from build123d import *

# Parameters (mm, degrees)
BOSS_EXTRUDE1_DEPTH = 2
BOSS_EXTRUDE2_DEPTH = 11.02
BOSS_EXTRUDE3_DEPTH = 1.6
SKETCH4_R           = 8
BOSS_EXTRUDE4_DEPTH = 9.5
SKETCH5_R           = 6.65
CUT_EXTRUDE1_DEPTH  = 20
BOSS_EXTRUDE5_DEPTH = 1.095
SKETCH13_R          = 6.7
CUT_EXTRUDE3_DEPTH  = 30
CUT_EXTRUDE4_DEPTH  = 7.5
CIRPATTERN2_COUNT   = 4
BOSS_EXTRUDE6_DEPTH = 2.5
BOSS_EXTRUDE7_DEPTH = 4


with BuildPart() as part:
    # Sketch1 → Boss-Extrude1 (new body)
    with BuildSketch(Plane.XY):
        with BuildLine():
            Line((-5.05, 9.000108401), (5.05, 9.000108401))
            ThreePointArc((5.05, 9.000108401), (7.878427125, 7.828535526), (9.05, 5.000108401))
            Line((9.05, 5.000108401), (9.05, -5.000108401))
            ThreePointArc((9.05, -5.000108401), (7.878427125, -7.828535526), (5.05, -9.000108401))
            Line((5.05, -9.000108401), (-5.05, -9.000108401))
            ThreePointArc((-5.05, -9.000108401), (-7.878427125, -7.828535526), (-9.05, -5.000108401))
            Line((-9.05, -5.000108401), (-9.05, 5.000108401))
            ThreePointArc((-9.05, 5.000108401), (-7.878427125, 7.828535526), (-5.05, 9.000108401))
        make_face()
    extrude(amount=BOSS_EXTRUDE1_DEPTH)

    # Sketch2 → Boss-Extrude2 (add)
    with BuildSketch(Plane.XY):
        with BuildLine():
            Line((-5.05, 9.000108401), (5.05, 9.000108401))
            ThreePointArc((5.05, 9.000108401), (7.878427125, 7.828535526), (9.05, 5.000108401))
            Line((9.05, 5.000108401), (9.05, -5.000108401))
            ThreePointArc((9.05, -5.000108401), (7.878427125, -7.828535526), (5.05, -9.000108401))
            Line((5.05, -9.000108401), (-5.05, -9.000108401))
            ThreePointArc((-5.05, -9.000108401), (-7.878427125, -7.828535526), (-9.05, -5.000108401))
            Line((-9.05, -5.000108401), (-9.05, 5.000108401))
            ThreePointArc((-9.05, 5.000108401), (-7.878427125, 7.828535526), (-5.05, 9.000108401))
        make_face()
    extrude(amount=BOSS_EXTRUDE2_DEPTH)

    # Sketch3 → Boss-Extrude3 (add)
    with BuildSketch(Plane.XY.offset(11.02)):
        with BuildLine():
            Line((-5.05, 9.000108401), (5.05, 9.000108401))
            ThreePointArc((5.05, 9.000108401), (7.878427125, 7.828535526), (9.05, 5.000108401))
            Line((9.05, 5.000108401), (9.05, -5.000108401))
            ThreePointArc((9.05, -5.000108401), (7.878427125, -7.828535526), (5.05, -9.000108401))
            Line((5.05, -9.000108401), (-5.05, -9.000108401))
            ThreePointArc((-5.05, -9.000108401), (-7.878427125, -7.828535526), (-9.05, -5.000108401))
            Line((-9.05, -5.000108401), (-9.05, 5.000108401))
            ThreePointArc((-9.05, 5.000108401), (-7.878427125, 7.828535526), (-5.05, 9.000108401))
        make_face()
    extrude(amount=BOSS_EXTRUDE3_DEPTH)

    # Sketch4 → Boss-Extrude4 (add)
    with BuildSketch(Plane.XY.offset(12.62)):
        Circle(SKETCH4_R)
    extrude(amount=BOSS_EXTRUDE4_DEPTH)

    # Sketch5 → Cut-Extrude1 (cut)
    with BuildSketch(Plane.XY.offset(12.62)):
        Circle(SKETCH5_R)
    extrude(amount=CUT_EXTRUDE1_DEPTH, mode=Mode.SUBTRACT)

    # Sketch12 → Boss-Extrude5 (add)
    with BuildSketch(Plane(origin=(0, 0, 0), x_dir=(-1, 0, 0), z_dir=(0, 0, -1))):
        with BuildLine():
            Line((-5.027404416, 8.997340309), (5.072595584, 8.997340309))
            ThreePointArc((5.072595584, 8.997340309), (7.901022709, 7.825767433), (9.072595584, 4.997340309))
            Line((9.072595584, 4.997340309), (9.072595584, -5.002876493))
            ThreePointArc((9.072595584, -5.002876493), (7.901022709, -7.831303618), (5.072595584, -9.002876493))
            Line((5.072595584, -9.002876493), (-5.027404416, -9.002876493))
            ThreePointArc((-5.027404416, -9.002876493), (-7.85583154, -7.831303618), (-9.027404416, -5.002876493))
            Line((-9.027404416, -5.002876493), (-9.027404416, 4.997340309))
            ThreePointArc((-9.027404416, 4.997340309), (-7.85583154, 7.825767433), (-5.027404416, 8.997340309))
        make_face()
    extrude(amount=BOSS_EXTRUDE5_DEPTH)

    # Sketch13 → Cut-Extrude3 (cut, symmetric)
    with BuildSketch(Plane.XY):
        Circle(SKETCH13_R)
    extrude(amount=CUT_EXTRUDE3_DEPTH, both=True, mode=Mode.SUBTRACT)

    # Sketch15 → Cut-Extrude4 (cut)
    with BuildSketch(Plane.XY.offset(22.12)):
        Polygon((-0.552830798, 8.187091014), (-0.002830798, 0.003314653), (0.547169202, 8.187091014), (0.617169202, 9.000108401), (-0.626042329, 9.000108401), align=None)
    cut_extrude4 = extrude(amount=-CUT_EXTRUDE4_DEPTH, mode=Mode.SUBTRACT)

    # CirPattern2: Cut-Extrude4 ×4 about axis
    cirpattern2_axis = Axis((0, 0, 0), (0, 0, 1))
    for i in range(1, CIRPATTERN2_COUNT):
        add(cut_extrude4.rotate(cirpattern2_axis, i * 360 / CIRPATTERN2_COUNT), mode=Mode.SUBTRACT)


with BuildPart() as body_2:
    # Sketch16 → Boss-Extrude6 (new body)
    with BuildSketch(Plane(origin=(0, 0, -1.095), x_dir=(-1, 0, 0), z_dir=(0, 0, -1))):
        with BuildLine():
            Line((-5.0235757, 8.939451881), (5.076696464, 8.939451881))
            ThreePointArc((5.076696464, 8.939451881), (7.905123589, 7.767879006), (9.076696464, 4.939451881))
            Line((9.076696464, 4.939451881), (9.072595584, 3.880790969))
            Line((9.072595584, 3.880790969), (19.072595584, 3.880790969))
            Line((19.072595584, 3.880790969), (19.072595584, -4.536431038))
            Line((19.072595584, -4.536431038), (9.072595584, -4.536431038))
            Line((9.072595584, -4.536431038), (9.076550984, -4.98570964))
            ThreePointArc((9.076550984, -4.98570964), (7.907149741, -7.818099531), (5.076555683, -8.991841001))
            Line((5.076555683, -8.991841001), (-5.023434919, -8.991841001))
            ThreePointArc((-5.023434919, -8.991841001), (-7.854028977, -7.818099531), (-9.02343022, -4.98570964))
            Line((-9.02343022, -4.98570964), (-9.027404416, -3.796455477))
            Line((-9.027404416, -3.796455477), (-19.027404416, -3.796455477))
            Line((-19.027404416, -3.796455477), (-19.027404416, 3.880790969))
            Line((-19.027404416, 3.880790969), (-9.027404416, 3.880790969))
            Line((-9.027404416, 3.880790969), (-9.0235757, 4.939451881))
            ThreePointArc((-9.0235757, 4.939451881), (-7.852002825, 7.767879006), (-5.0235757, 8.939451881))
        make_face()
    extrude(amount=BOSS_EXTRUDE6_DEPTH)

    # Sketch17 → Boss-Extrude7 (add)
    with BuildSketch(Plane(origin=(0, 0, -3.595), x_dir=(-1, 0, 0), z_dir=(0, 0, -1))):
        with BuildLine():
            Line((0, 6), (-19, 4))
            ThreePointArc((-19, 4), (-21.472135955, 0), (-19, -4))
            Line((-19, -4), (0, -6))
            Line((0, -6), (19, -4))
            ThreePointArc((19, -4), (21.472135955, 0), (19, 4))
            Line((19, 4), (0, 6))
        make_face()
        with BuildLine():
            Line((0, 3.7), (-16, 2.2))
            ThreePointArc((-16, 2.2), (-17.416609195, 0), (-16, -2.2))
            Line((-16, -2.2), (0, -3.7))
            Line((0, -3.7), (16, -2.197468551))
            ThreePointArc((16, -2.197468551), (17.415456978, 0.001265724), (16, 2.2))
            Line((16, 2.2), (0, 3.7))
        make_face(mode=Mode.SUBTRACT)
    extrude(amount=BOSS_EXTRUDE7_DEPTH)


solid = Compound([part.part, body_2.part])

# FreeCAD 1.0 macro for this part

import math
import FreeCAD as App
import Part
import Sketcher

V = App.Vector

doc = App.newDocument("Part")
body = doc.addObject("PartDesign::Body", "Body")

# Sketch on XY plane
sketch1 = doc.addObject("Sketcher::SketchObject", "Sketch")
body.addObject(sketch1)
sketch1.AttachmentSupport = (doc.XY_Plane, [""])
sketch1.MapMode = "FlatFace"
sketch1.addGeometry(Part.LineSegment(V(5.05, 9.000108, 0), V(-5.05, 9.000108, 0)), False)
sketch1.addGeometry(Part.ArcOfCircle(Part.Circle(V(-5.05, 5.000108, 0), V(0, 0, 1), 4), math.radians(90), math.radians(180)), False)
sketch1.addGeometry(Part.LineSegment(V(-9.05, 5.000108, 0), V(-9.05, -5.000108, 0)), False)
sketch1.addGeometry(Part.ArcOfCircle(Part.Circle(V(-5.05, -5.000108, 0), V(0, 0, 1), 4), math.radians(180), math.radians(270)), False)
sketch1.addGeometry(Part.LineSegment(V(-5.05, -9.000108, 0), V(5.05, -9.000108, 0)), False)
sketch1.addGeometry(Part.ArcOfCircle(Part.Circle(V(5.05, -5.000108, 0), V(0, 0, 1), 4), math.radians(-90), math.radians(0)), False)
sketch1.addGeometry(Part.LineSegment(V(9.05, -5.000108, 0), V(9.05, 5.000108, 0)), False)
sketch1.addGeometry(Part.ArcOfCircle(Part.Circle(V(5.05, 5.000108, 0), V(0, 0, 1), 4), math.radians(0), math.radians(90)), False)
sketch1.addConstraint(Sketcher.Constraint("Tangent", 0, 2, 1, 1))
sketch1.addConstraint(Sketcher.Constraint("Tangent", 1, 2, 2, 1))
sketch1.addConstraint(Sketcher.Constraint("Tangent", 2, 2, 3, 1))
sketch1.addConstraint(Sketcher.Constraint("Tangent", 3, 2, 4, 1))
sketch1.addConstraint(Sketcher.Constraint("Tangent", 4, 2, 5, 1))
sketch1.addConstraint(Sketcher.Constraint("Tangent", 5, 2, 6, 1))
sketch1.addConstraint(Sketcher.Constraint("Tangent", 6, 2, 7, 1))
sketch1.addConstraint(Sketcher.Constraint("Tangent", 7, 2, 0, 1))
sketch1.addConstraint(Sketcher.Constraint("Horizontal", 0))
sketch1.addConstraint(Sketcher.Constraint("Vertical", 2))
sketch1.addConstraint(Sketcher.Constraint("Horizontal", 4))
sketch1.addConstraint(Sketcher.Constraint("Vertical", 6))
sketch1.addConstraint(Sketcher.Constraint("Equal", 1, 3))
sketch1.addConstraint(Sketcher.Constraint("Equal", 3, 5))
sketch1.addConstraint(Sketcher.Constraint("Equal", 5, 7))
sketch1.addConstraint(Sketcher.Constraint("Symmetric", 1, 3, 5, 3, -1, 1))
sketch1.addConstraint(Sketcher.Constraint("Radius", 1, 4.0))
sketch1.addConstraint(Sketcher.Constraint("DistanceX", 0, 2, 0, 1, 10.1))
sketch1.addConstraint(Sketcher.Constraint("DistanceY", 2, 2, 2, 1, 10.000217))
pad1 = doc.addObject("PartDesign::Pad", "Pad")
body.addObject(pad1)
pad1.Profile = sketch1
pad1.Length = 2

# Sketch on XY plane
sketch2 = doc.addObject("Sketcher::SketchObject", "Sketch001")
body.addObject(sketch2)
sketch2.AttachmentSupport = (doc.XY_Plane, [""])
sketch2.MapMode = "FlatFace"
sketch2.addGeometry(Part.LineSegment(V(5.05, 9.000108, 0), V(-5.05, 9.000108, 0)), False)
sketch2.addGeometry(Part.ArcOfCircle(Part.Circle(V(-5.05, 5.000108, 0), V(0, 0, 1), 4), math.radians(90), math.radians(180)), False)
sketch2.addGeometry(Part.LineSegment(V(-9.05, 5.000108, 0), V(-9.05, -5.000108, 0)), False)
sketch2.addGeometry(Part.ArcOfCircle(Part.Circle(V(-5.05, -5.000108, 0), V(0, 0, 1), 4), math.radians(180), math.radians(270)), False)
sketch2.addGeometry(Part.LineSegment(V(-5.05, -9.000108, 0), V(5.05, -9.000108, 0)), False)
sketch2.addGeometry(Part.ArcOfCircle(Part.Circle(V(5.05, -5.000108, 0), V(0, 0, 1), 4), math.radians(-90), math.radians(0)), False)
sketch2.addGeometry(Part.LineSegment(V(9.05, -5.000108, 0), V(9.05, 5.000108, 0)), False)
sketch2.addGeometry(Part.ArcOfCircle(Part.Circle(V(5.05, 5.000108, 0), V(0, 0, 1), 4), math.radians(0), math.radians(90)), False)
sketch2.addConstraint(Sketcher.Constraint("Tangent", 0, 2, 1, 1))
sketch2.addConstraint(Sketcher.Constraint("Tangent", 1, 2, 2, 1))
sketch2.addConstraint(Sketcher.Constraint("Tangent", 2, 2, 3, 1))
sketch2.addConstraint(Sketcher.Constraint("Tangent", 3, 2, 4, 1))
sketch2.addConstraint(Sketcher.Constraint("Tangent", 4, 2, 5, 1))
sketch2.addConstraint(Sketcher.Constraint("Tangent", 5, 2, 6, 1))
sketch2.addConstraint(Sketcher.Constraint("Tangent", 6, 2, 7, 1))
sketch2.addConstraint(Sketcher.Constraint("Tangent", 7, 2, 0, 1))
sketch2.addConstraint(Sketcher.Constraint("Horizontal", 0))
sketch2.addConstraint(Sketcher.Constraint("Vertical", 2))
sketch2.addConstraint(Sketcher.Constraint("Horizontal", 4))
sketch2.addConstraint(Sketcher.Constraint("Vertical", 6))
sketch2.addConstraint(Sketcher.Constraint("Equal", 1, 3))
sketch2.addConstraint(Sketcher.Constraint("Equal", 3, 5))
sketch2.addConstraint(Sketcher.Constraint("Equal", 5, 7))
sketch2.addConstraint(Sketcher.Constraint("Symmetric", 1, 3, 5, 3, -1, 1))
sketch2.addConstraint(Sketcher.Constraint("Radius", 1, 4.0))
sketch2.addConstraint(Sketcher.Constraint("DistanceX", 0, 2, 0, 1, 10.1))
sketch2.addConstraint(Sketcher.Constraint("DistanceY", 2, 2, 2, 1, 10.000217))
pad2 = doc.addObject("PartDesign::Pad", "Pad001")
body.addObject(pad2)
pad2.Profile = sketch2
pad2.Length = 11.02

# Sketch on XY plane
sketch3 = doc.addObject("Sketcher::SketchObject", "Sketch002")
body.addObject(sketch3)
sketch3.AttachmentSupport = (doc.XY_Plane, [""])
sketch3.MapMode = "FlatFace"
sketch3.AttachmentOffset = App.Placement(V(0, 0, 11.02), App.Rotation())
sketch3.addGeometry(Part.LineSegment(V(5.05, 9.000108, 0), V(-5.05, 9.000108, 0)), False)
sketch3.addGeometry(Part.ArcOfCircle(Part.Circle(V(-5.05, 5.000108, 0), V(0, 0, 1), 4), math.radians(90), math.radians(180)), False)
sketch3.addGeometry(Part.LineSegment(V(-9.05, 5.000108, 0), V(-9.05, -5.000108, 0)), False)
sketch3.addGeometry(Part.ArcOfCircle(Part.Circle(V(-5.05, -5.000108, 0), V(0, 0, 1), 4), math.radians(180), math.radians(270)), False)
sketch3.addGeometry(Part.LineSegment(V(-5.05, -9.000108, 0), V(5.05, -9.000108, 0)), False)
sketch3.addGeometry(Part.ArcOfCircle(Part.Circle(V(5.05, -5.000108, 0), V(0, 0, 1), 4), math.radians(-90), math.radians(0)), False)
sketch3.addGeometry(Part.LineSegment(V(9.05, -5.000108, 0), V(9.05, 5.000108, 0)), False)
sketch3.addGeometry(Part.ArcOfCircle(Part.Circle(V(5.05, 5.000108, 0), V(0, 0, 1), 4), math.radians(0), math.radians(90)), False)
sketch3.addConstraint(Sketcher.Constraint("Tangent", 0, 2, 1, 1))
sketch3.addConstraint(Sketcher.Constraint("Tangent", 1, 2, 2, 1))
sketch3.addConstraint(Sketcher.Constraint("Tangent", 2, 2, 3, 1))
sketch3.addConstraint(Sketcher.Constraint("Tangent", 3, 2, 4, 1))
sketch3.addConstraint(Sketcher.Constraint("Tangent", 4, 2, 5, 1))
sketch3.addConstraint(Sketcher.Constraint("Tangent", 5, 2, 6, 1))
sketch3.addConstraint(Sketcher.Constraint("Tangent", 6, 2, 7, 1))
sketch3.addConstraint(Sketcher.Constraint("Tangent", 7, 2, 0, 1))
sketch3.addConstraint(Sketcher.Constraint("Horizontal", 0))
sketch3.addConstraint(Sketcher.Constraint("Vertical", 2))
sketch3.addConstraint(Sketcher.Constraint("Horizontal", 4))
sketch3.addConstraint(Sketcher.Constraint("Vertical", 6))
sketch3.addConstraint(Sketcher.Constraint("Equal", 1, 3))
sketch3.addConstraint(Sketcher.Constraint("Equal", 3, 5))
sketch3.addConstraint(Sketcher.Constraint("Equal", 5, 7))
sketch3.addConstraint(Sketcher.Constraint("Symmetric", 1, 3, 5, 3, -1, 1))
sketch3.addConstraint(Sketcher.Constraint("Radius", 1, 4.0))
sketch3.addConstraint(Sketcher.Constraint("DistanceX", 0, 2, 0, 1, 10.1))
sketch3.addConstraint(Sketcher.Constraint("DistanceY", 2, 2, 2, 1, 10.000217))
pad3 = doc.addObject("PartDesign::Pad", "Pad002")
body.addObject(pad3)
pad3.Profile = sketch3
pad3.Length = 1.6

# Sketch on XY plane
sketch4 = doc.addObject("Sketcher::SketchObject", "Sketch003")
body.addObject(sketch4)
sketch4.AttachmentSupport = (doc.XY_Plane, [""])
sketch4.MapMode = "FlatFace"
sketch4.AttachmentOffset = App.Placement(V(0, 0, 12.62), App.Rotation())
sketch4.addGeometry(Part.Circle(V(0, 0, 0), V(0, 0, 1), 8), False)
sketch4.addConstraint(Sketcher.Constraint("Coincident", 0, 3, -1, 1))
sketch4.addConstraint(Sketcher.Constraint("Diameter", 0, 16.0))
pad4 = doc.addObject("PartDesign::Pad", "Pad003")
body.addObject(pad4)
pad4.Profile = sketch4
pad4.Length = 9.5

# Sketch on XY plane
sketch5 = doc.addObject("Sketcher::SketchObject", "Sketch004")
body.addObject(sketch5)
sketch5.AttachmentSupport = (doc.XY_Plane, [""])
sketch5.MapMode = "FlatFace"
sketch5.AttachmentOffset = App.Placement(V(0, 0, 12.62), App.Rotation())
sketch5.addGeometry(Part.Circle(V(0, 0, 0), V(0, 0, 1), 6.65), False)
sketch5.addConstraint(Sketcher.Constraint("Coincident", 0, 3, -1, 1))
sketch5.addConstraint(Sketcher.Constraint("Diameter", 0, 13.3))
pocket1 = doc.addObject("PartDesign::Pocket", "Pocket")
body.addObject(pocket1)
pocket1.Profile = sketch5
pocket1.Length = 20
pocket1.Reversed = True

# Sketch on XY plane
sketch6 = doc.addObject("Sketcher::SketchObject", "Sketch005")
body.addObject(sketch6)
sketch6.AttachmentSupport = (doc.XY_Plane, [""])
sketch6.MapMode = "FlatFace"
sketch6.addGeometry(Part.LineSegment(V(-5.072596, 8.99734, 0), V(5.027404, 8.99734, 0)), False)
sketch6.addGeometry(Part.ArcOfCircle(Part.Circle(V(5.027404, 4.99734, 0), V(0, 0, 1), 4), math.radians(0), math.radians(90)), False)
sketch6.addGeometry(Part.LineSegment(V(9.027404, 4.99734, 0), V(9.027404, -5.002876, 0)), False)
sketch6.addGeometry(Part.ArcOfCircle(Part.Circle(V(5.027404, -5.002876, 0), V(0, 0, 1), 4), math.radians(-90), math.radians(0)), False)
sketch6.addGeometry(Part.LineSegment(V(5.027404, -9.002876, 0), V(-5.072596, -9.002876, 0)), False)
sketch6.addGeometry(Part.ArcOfCircle(Part.Circle(V(-5.072596, -5.002876, 0), V(0, 0, 1), 4), math.radians(180), math.radians(270)), False)
sketch6.addGeometry(Part.LineSegment(V(-9.072596, -5.002876, 0), V(-9.072596, 4.99734, 0)), False)
sketch6.addGeometry(Part.ArcOfCircle(Part.Circle(V(-5.072596, 4.99734, 0), V(0, 0, 1), 4), math.radians(90), math.radians(180)), False)
sketch6.addConstraint(Sketcher.Constraint("Tangent", 0, 2, 1, 2))
sketch6.addConstraint(Sketcher.Constraint("Tangent", 1, 1, 2, 1))
sketch6.addConstraint(Sketcher.Constraint("Tangent", 2, 2, 3, 2))
sketch6.addConstraint(Sketcher.Constraint("Tangent", 3, 1, 4, 1))
sketch6.addConstraint(Sketcher.Constraint("Tangent", 4, 2, 5, 2))
sketch6.addConstraint(Sketcher.Constraint("Tangent", 5, 1, 6, 1))
sketch6.addConstraint(Sketcher.Constraint("Tangent", 6, 2, 7, 2))
sketch6.addConstraint(Sketcher.Constraint("Tangent", 7, 1, 0, 1))
sketch6.addConstraint(Sketcher.Constraint("Horizontal", 0))
sketch6.addConstraint(Sketcher.Constraint("Vertical", 2))
sketch6.addConstraint(Sketcher.Constraint("Horizontal", 4))
sketch6.addConstraint(Sketcher.Constraint("Vertical", 6))
sketch6.addConstraint(Sketcher.Constraint("Equal", 1, 3))
sketch6.addConstraint(Sketcher.Constraint("Equal", 3, 5))
sketch6.addConstraint(Sketcher.Constraint("Equal", 5, 7))
sketch6.addConstraint(Sketcher.Constraint("Radius", 1, 4.0))
sketch6.addConstraint(Sketcher.Constraint("DistanceX", 0, 1, 0, 2, 10.1))
sketch6.addConstraint(Sketcher.Constraint("DistanceY", 2, 2, 2, 1, 10.000217))
sketch6.addConstraint(Sketcher.Constraint("DistanceY", -1, 1, 1, 3, 4.99734))
sketch6.addConstraint(Sketcher.Constraint("DistanceX", -1, 1, 1, 3, 5.027404))
pad5 = doc.addObject("PartDesign::Pad", "Pad004")
body.addObject(pad5)
pad5.Profile = sketch6
pad5.Length = 1.095
pad5.Reversed = True

# Sketch on XY plane
sketch7 = doc.addObject("Sketcher::SketchObject", "Sketch006")
body.addObject(sketch7)
sketch7.AttachmentSupport = (doc.XY_Plane, [""])
sketch7.MapMode = "FlatFace"
sketch7.addGeometry(Part.Circle(V(0, 0, 0), V(0, 0, 1), 6.7), False)
sketch7.addConstraint(Sketcher.Constraint("Coincident", 0, 3, -1, 1))
sketch7.addConstraint(Sketcher.Constraint("Diameter", 0, 13.4))
pocket2 = doc.addObject("PartDesign::Pocket", "Pocket001")
body.addObject(pocket2)
pocket2.Profile = sketch7
pocket2.Length = 60
pocket2.Midplane = True

# Sketch on XY plane
sketch8 = doc.addObject("Sketcher::SketchObject", "Sketch007")
body.addObject(sketch8)
sketch8.AttachmentSupport = (doc.XY_Plane, [""])
sketch8.MapMode = "FlatFace"
sketch8.AttachmentOffset = App.Placement(V(0, 0, 22.12), App.Rotation())
sketch8.addGeometry(Part.LineSegment(V(-0.552831, 8.187091, 0), V(-0.002831, 0.003315, 0)), False)
sketch8.addGeometry(Part.LineSegment(V(-0.002831, 0.003315, 0), V(0.547169, 8.187091, 0)), False)
sketch8.addGeometry(Part.LineSegment(V(0.547169, 8.187091, 0), V(0.617169, 9.000108, 0)), False)
sketch8.addGeometry(Part.LineSegment(V(0.617169, 9.000108, 0), V(-0.626042, 9.000108, 0)), False)
sketch8.addGeometry(Part.LineSegment(V(-0.626042, 9.000108, 0), V(-0.552831, 8.187091, 0)), False)
sketch8.addConstraint(Sketcher.Constraint("Coincident", 0, 2, 1, 1))
sketch8.addConstraint(Sketcher.Constraint("Coincident", 1, 2, 2, 1))
sketch8.addConstraint(Sketcher.Constraint("Coincident", 2, 2, 3, 1))
sketch8.addConstraint(Sketcher.Constraint("Coincident", 3, 2, 4, 1))
sketch8.addConstraint(Sketcher.Constraint("Coincident", 4, 2, 0, 1))
sketch8.addConstraint(Sketcher.Constraint("Horizontal", 3))
sketch8.addConstraint(Sketcher.Constraint("Horizontal", 1, 2, 4, 2))
sketch8.addConstraint(Sketcher.Constraint("Equal", 0, 1))
sketch8.addConstraint(Sketcher.Constraint("DistanceX", 4, 2, 1, 2, 1.1))
sketch8.addConstraint(Sketcher.Constraint("DistanceX", 1, 2, 2, 2, 0.07))
sketch8.addConstraint(Sketcher.Constraint("DistanceX", 3, 2, 3, 1, 1.243212))
sketch8.addConstraint(Sketcher.Constraint("DistanceX", 0, 2, -1, 1, 0.002831))
sketch8.addConstraint(Sketcher.Constraint("DistanceY", -1, 1, 1, 2, 8.187091))
sketch8.addConstraint(Sketcher.Constraint("DistanceY", -1, 1, 2, 2, 9.000108))
sketch8.addConstraint(Sketcher.Constraint("Distance", 0, 8.202237))
pocket3 = doc.addObject("PartDesign::Pocket", "Pocket002")
body.addObject(pocket3)
pocket3.Profile = sketch8
pocket3.Length = 7.5
doc.recompute()

polarpattern = doc.addObject("PartDesign::PolarPattern", "PolarPattern")
body.addObject(polarpattern)
polarpattern.Originals = [pocket3]
polarpattern.Axis = (doc.Z_Axis, [""])
polarpattern.Angle = 360
polarpattern.Occurrences = 4
body.Tip = polarpattern
body2 = doc.addObject("PartDesign::Body", "Body001")

# Sketch on XY plane
sketch9 = doc.addObject("Sketcher::SketchObject", "Sketch008")
body2.addObject(sketch9)
sketch9.AttachmentSupport = (doc.getObject("XY_Plane001"), [""])
sketch9.MapMode = "FlatFace"
sketch9.AttachmentOffset = App.Placement(V(0, 0, -1.095), App.Rotation())
sketch9.addGeometry(Part.LineSegment(V(-5.076696, 8.939452, 0), V(5.023576, 8.939452, 0)), False)
sketch9.addGeometry(Part.ArcOfCircle(Part.Circle(V(5.023576, 4.939452, 0), V(0, 0, 1), 4), math.radians(0), math.radians(90)), False)
sketch9.addGeometry(Part.LineSegment(V(9.023576, 4.939452, 0), V(9.027404, 3.880791, 0)), False)
sketch9.addGeometry(Part.LineSegment(V(9.027404, 3.880791, 0), V(19.027404, 3.880791, 0)), False)
sketch9.addGeometry(Part.LineSegment(V(19.027404, 3.880791, 0), V(19.027404, -3.796455, 0)), False)
sketch9.addGeometry(Part.LineSegment(V(19.027404, -3.796455, 0), V(9.027404, -3.796455, 0)), False)
sketch9.addGeometry(Part.LineSegment(V(9.027404, -3.796455, 0), V(9.02343, -4.98571, 0)), False)
sketch9.addGeometry(Part.ArcOfCircle(Part.Circle(V(5.023435, -4.991841, 0), V(0, 0, 1), 4), math.radians(-90), math.radians(0.087825)), False)
sketch9.addGeometry(Part.LineSegment(V(5.023435, -8.991841, 0), V(-5.076556, -8.991841, 0)), False)
sketch9.addGeometry(Part.ArcOfCircle(Part.Circle(V(-5.076556, -4.991841, 0), V(0, 0, 1), 4), math.radians(179.912175), math.radians(270)), False)
sketch9.addGeometry(Part.LineSegment(V(-9.076551, -4.98571, 0), V(-9.072596, -4.536431, 0)), False)
sketch9.addGeometry(Part.LineSegment(V(-9.072596, -4.536431, 0), V(-19.072596, -4.536431, 0)), False)
sketch9.addGeometry(Part.LineSegment(V(-19.072596, -4.536431, 0), V(-19.072596, 3.880791, 0)), False)
sketch9.addGeometry(Part.LineSegment(V(-19.072596, 3.880791, 0), V(-9.072596, 3.880791, 0)), False)
sketch9.addGeometry(Part.LineSegment(V(-9.072596, 3.880791, 0), V(-9.076696, 4.939452, 0)), False)
sketch9.addGeometry(Part.ArcOfCircle(Part.Circle(V(-5.076696, 4.939452, 0), V(0, 0, 1), 4), math.radians(90), math.radians(180)), False)
sketch9.addConstraint(Sketcher.Constraint("Coincident", 0, 2, 1, 2))
sketch9.addConstraint(Sketcher.Constraint("Coincident", 1, 1, 2, 1))
sketch9.addConstraint(Sketcher.Constraint("Coincident", 2, 2, 3, 1))
sketch9.addConstraint(Sketcher.Constraint("Coincident", 3, 2, 4, 1))
sketch9.addConstraint(Sketcher.Constraint("Coincident", 4, 2, 5, 1))
sketch9.addConstraint(Sketcher.Constraint("Coincident", 5, 2, 6, 1))
sketch9.addConstraint(Sketcher.Constraint("Coincident", 6, 2, 7, 2))
sketch9.addConstraint(Sketcher.Constraint("Coincident", 7, 1, 8, 1))
sketch9.addConstraint(Sketcher.Constraint("Coincident", 8, 2, 9, 2))
sketch9.addConstraint(Sketcher.Constraint("Coincident", 9, 1, 10, 1))
sketch9.addConstraint(Sketcher.Constraint("Coincident", 10, 2, 11, 1))
sketch9.addConstraint(Sketcher.Constraint("Coincident", 11, 2, 12, 1))
sketch9.addConstraint(Sketcher.Constraint("Coincident", 12, 2, 13, 1))
sketch9.addConstraint(Sketcher.Constraint("Coincident", 13, 2, 14, 1))
sketch9.addConstraint(Sketcher.Constraint("Coincident", 14, 2, 15, 2))
sketch9.addConstraint(Sketcher.Constraint("Coincident", 15, 1, 0, 1))
sketch9.addConstraint(Sketcher.Constraint("Horizontal", 0))
sketch9.addConstraint(Sketcher.Constraint("Horizontal", 3))
sketch9.addConstraint(Sketcher.Constraint("Vertical", 4))
sketch9.addConstraint(Sketcher.Constraint("Horizontal", 5))
sketch9.addConstraint(Sketcher.Constraint("Horizontal", 8))
sketch9.addConstraint(Sketcher.Constraint("Horizontal", 11))
sketch9.addConstraint(Sketcher.Constraint("Vertical", 12))
sketch9.addConstraint(Sketcher.Constraint("Horizontal", 13))
sketch9.addConstraint(Sketcher.Constraint("Radius", 1, 4.0))
sketch9.addConstraint(Sketcher.Constraint("Radius", 7, 4.0))
sketch9.addConstraint(Sketcher.Constraint("Radius", 9, 4.0))
sketch9.addConstraint(Sketcher.Constraint("Radius", 15, 4.0))
sketch9.addConstraint(Sketcher.Constraint("DistanceX", 3, 1, 3, 2, 10.0))
sketch9.addConstraint(Sketcher.Constraint("DistanceX", 5, 2, 5, 1, 10.0))
sketch9.addConstraint(Sketcher.Constraint("DistanceX", 11, 2, 11, 1, 10.0))
sketch9.addConstraint(Sketcher.Constraint("DistanceX", 13, 1, 13, 2, 10.0))
sketch9.addConstraint(Sketcher.Constraint("DistanceX", 0, 2, 1, 1, 4.0))
sketch9.addConstraint(Sketcher.Constraint("DistanceY", 1, 1, 0, 2, 4.0))
sketch9.addConstraint(Sketcher.Constraint("DistanceX", 14, 2, 15, 1, 4.0))
sketch9.addConstraint(Sketcher.Constraint("DistanceY", 14, 2, 15, 1, 4.0))
sketch9.addConstraint(Sketcher.Constraint("DistanceX", 8, 2, 8, 1, 10.099991))
sketch9.addConstraint(Sketcher.Constraint("DistanceX", 15, 3, 2, 2, 14.104101))
sketch9.addConstraint(Sketcher.Constraint("DistanceY", 6, 2, 2, 2, 8.866501))
sketch9.addConstraint(Sketcher.Constraint("DistanceX", 10, 2, 15, 3, 3.995899))
sketch9.addConstraint(Sketcher.Constraint("DistanceY", 9, 1, 12, 2, 8.866501))
sketch9.addConstraint(Sketcher.Constraint("Distance", 6, 1.189261))
sketch9.addConstraint(Sketcher.Constraint("Distance", 14, 1.058669))
sketch9.addConstraint(Sketcher.Constraint("DistanceX", 0, 1, 0, 2, 10.100272))
sketch9.addConstraint(Sketcher.Constraint("DistanceY", 12, 1, 12, 2, 8.417222))
sketch9.addConstraint(Sketcher.Constraint("DistanceY", -1, 1, 1, 3, 4.939452))
sketch9.addConstraint(Sketcher.Constraint("DistanceY", 7, 3, -1, 1, 4.991841))
sketch9.addConstraint(Sketcher.Constraint("DistanceY", -1, 1, 2, 2, 3.880791))
sketch9.addConstraint(Sketcher.Constraint("DistanceX", -1, 1, 6, 2, 9.02343))
sketch9.addConstraint(Sketcher.Constraint("DistanceX", 9, 1, -1, 1, 9.076551))
sketch9.addConstraint(Sketcher.Constraint("DistanceX", 7, 3, 1, 3, 0.000141))
sketch9.addConstraint(Sketcher.Constraint("DistanceX", 7, 1, 5, 2, 4.003969))
pad6 = doc.addObject("PartDesign::Pad", "Pad005")
body2.addObject(pad6)
pad6.Profile = sketch9
pad6.Length = 2.5
pad6.Reversed = True

# Sketch on XY plane
sketch10 = doc.addObject("Sketcher::SketchObject", "Sketch009")
body2.addObject(sketch10)
sketch10.AttachmentSupport = (doc.getObject("XY_Plane001"), [""])
sketch10.MapMode = "FlatFace"
sketch10.AttachmentOffset = App.Placement(V(0, 0, -3.595), App.Rotation())
sketch10.addGeometry(Part.LineSegment(V(0, 6, 0), V(19, 4, 0)), False)
sketch10.addGeometry(Part.ArcOfCircle(Part.Circle(V(17, 0, 0), V(0, 0, 1), 4.472136), math.radians(-63.434949), math.radians(63.434949)), False)
sketch10.addGeometry(Part.LineSegment(V(19, -4, 0), V(0, -6, 0)), False)
sketch10.addGeometry(Part.LineSegment(V(0, -6, 0), V(-19, -4, 0)), False)
sketch10.addGeometry(Part.ArcOfCircle(Part.Circle(V(-17, 0, 0), V(0, 0, 1), 4.472136), math.radians(116.565051), math.radians(243.434949)), False)
sketch10.addGeometry(Part.LineSegment(V(-19, 4, 0), V(0, 6, 0)), False)
sketch10.addGeometry(Part.LineSegment(V(16, 2.2, 0), V(0, 3.7, 0)), False)
sketch10.addGeometry(Part.LineSegment(V(0, 3.7, 0), V(-16, 2.2, 0)), False)
sketch10.addGeometry(Part.ArcOfCircle(Part.Circle(V(-15, 0.001266, 0), V(0, 0, 1), 2.415457), math.radians(114.456379), math.radians(245.543621)), False)
sketch10.addGeometry(Part.LineSegment(V(-16, -2.197469, 0), V(0, -3.7, 0)), False)
sketch10.addGeometry(Part.LineSegment(V(0, -3.7, 0), V(16, -2.2, 0)), False)
sketch10.addGeometry(Part.ArcOfCircle(Part.Circle(V(15, 0, 0), V(0, 0, 1), 2.416609), math.radians(-65.556045), math.radians(65.556045)), False)
sketch10.addConstraint(Sketcher.Constraint("Coincident", 0, 2, 1, 2))
sketch10.addConstraint(Sketcher.Constraint("Coincident", 1, 1, 2, 1))
sketch10.addConstraint(Sketcher.Constraint("Coincident", 2, 2, 3, 1))
sketch10.addConstraint(Sketcher.Constraint("Coincident", 3, 2, 4, 2))
sketch10.addConstraint(Sketcher.Constraint("Coincident", 4, 1, 5, 1))
sketch10.addConstraint(Sketcher.Constraint("Coincident", 5, 2, 0, 1))
sketch10.addConstraint(Sketcher.Constraint("Coincident", 6, 2, 7, 1))
sketch10.addConstraint(Sketcher.Constraint("Coincident", 7, 2, 8, 1))
sketch10.addConstraint(Sketcher.Constraint("Coincident", 8, 2, 9, 1))
sketch10.addConstraint(Sketcher.Constraint("Coincident", 9, 2, 10, 1))
sketch10.addConstraint(Sketcher.Constraint("Coincident", 10, 2, 11, 1))
sketch10.addConstraint(Sketcher.Constraint("Coincident", 11, 2, 6, 1))
sketch10.addConstraint(Sketcher.Constraint("Equal", 1, 4))
sketch10.addConstraint(Sketcher.Constraint("Symmetric", 1, 3, 4, 3, -1, 1))
sketch10.addConstraint(Sketcher.Constraint("Symmetric", 2, 2, 5, 2, -1, 1))
sketch10.addConstraint(Sketcher.Constraint("Symmetric", 6, 2, 9, 2, -1, 1))
sketch10.addConstraint(Sketcher.Constraint("Symmetric", 7, 2, 10, 2, -1, 1))
sketch10.addConstraint(Sketcher.Constraint("Symmetric", 1, 1, 3, 2, -2))
sketch10.addConstraint(Sketcher.Constraint("Symmetric", 7, 2, 11, 2, -2))
sketch10.addConstraint(Sketcher.Constraint("PointOnObject", 2, 2, -2))
sketch10.addConstraint(Sketcher.Constraint("PointOnObject", 6, 2, -2))
sketch10.addConstraint(Sketcher.Constraint("Parallel", 0, 3))
sketch10.addConstraint(Sketcher.Constraint("Parallel", 2, 5))
sketch10.addConstraint(Sketcher.Constraint("Vertical", 7, 2, 8, 2))
sketch10.addConstraint(Sketcher.Constraint("DistanceX", -1, 1, 1, 3, 17.0))
sketch10.addConstraint(Sketcher.Constraint("DistanceX", 8, 3, -1, 1, 15.0))
sketch10.addConstraint(Sketcher.Constraint("DistanceX", -1, 1, 11, 3, 15.0))
sketch10.addConstraint(Sketcher.Constraint("DistanceX", -1, 1, 0, 2, 19.0))
sketch10.addConstraint(Sketcher.Constraint("DistanceY", -1, 1, 0, 2, 4.0))
sketch10.addConstraint(Sketcher.Constraint("DistanceY", 2, 2, -1, 1, 6.0))
sketch10.addConstraint(Sketcher.Constraint("DistanceX", 7, 2, -1, 1, 16.0))
sketch10.addConstraint(Sketcher.Constraint("DistanceY", -1, 1, 6, 2, 3.7))
sketch10.addConstraint(Sketcher.Constraint("DistanceY", -1, 1, 7, 2, 2.2))
sketch10.addConstraint(Sketcher.Constraint("Radius", 8, 2.415457))
pad7 = doc.addObject("PartDesign::Pad", "Pad006")
body2.addObject(pad7)
pad7.Profile = sketch10
pad7.Length = 4
pad7.Reversed = True

doc.recompute()
